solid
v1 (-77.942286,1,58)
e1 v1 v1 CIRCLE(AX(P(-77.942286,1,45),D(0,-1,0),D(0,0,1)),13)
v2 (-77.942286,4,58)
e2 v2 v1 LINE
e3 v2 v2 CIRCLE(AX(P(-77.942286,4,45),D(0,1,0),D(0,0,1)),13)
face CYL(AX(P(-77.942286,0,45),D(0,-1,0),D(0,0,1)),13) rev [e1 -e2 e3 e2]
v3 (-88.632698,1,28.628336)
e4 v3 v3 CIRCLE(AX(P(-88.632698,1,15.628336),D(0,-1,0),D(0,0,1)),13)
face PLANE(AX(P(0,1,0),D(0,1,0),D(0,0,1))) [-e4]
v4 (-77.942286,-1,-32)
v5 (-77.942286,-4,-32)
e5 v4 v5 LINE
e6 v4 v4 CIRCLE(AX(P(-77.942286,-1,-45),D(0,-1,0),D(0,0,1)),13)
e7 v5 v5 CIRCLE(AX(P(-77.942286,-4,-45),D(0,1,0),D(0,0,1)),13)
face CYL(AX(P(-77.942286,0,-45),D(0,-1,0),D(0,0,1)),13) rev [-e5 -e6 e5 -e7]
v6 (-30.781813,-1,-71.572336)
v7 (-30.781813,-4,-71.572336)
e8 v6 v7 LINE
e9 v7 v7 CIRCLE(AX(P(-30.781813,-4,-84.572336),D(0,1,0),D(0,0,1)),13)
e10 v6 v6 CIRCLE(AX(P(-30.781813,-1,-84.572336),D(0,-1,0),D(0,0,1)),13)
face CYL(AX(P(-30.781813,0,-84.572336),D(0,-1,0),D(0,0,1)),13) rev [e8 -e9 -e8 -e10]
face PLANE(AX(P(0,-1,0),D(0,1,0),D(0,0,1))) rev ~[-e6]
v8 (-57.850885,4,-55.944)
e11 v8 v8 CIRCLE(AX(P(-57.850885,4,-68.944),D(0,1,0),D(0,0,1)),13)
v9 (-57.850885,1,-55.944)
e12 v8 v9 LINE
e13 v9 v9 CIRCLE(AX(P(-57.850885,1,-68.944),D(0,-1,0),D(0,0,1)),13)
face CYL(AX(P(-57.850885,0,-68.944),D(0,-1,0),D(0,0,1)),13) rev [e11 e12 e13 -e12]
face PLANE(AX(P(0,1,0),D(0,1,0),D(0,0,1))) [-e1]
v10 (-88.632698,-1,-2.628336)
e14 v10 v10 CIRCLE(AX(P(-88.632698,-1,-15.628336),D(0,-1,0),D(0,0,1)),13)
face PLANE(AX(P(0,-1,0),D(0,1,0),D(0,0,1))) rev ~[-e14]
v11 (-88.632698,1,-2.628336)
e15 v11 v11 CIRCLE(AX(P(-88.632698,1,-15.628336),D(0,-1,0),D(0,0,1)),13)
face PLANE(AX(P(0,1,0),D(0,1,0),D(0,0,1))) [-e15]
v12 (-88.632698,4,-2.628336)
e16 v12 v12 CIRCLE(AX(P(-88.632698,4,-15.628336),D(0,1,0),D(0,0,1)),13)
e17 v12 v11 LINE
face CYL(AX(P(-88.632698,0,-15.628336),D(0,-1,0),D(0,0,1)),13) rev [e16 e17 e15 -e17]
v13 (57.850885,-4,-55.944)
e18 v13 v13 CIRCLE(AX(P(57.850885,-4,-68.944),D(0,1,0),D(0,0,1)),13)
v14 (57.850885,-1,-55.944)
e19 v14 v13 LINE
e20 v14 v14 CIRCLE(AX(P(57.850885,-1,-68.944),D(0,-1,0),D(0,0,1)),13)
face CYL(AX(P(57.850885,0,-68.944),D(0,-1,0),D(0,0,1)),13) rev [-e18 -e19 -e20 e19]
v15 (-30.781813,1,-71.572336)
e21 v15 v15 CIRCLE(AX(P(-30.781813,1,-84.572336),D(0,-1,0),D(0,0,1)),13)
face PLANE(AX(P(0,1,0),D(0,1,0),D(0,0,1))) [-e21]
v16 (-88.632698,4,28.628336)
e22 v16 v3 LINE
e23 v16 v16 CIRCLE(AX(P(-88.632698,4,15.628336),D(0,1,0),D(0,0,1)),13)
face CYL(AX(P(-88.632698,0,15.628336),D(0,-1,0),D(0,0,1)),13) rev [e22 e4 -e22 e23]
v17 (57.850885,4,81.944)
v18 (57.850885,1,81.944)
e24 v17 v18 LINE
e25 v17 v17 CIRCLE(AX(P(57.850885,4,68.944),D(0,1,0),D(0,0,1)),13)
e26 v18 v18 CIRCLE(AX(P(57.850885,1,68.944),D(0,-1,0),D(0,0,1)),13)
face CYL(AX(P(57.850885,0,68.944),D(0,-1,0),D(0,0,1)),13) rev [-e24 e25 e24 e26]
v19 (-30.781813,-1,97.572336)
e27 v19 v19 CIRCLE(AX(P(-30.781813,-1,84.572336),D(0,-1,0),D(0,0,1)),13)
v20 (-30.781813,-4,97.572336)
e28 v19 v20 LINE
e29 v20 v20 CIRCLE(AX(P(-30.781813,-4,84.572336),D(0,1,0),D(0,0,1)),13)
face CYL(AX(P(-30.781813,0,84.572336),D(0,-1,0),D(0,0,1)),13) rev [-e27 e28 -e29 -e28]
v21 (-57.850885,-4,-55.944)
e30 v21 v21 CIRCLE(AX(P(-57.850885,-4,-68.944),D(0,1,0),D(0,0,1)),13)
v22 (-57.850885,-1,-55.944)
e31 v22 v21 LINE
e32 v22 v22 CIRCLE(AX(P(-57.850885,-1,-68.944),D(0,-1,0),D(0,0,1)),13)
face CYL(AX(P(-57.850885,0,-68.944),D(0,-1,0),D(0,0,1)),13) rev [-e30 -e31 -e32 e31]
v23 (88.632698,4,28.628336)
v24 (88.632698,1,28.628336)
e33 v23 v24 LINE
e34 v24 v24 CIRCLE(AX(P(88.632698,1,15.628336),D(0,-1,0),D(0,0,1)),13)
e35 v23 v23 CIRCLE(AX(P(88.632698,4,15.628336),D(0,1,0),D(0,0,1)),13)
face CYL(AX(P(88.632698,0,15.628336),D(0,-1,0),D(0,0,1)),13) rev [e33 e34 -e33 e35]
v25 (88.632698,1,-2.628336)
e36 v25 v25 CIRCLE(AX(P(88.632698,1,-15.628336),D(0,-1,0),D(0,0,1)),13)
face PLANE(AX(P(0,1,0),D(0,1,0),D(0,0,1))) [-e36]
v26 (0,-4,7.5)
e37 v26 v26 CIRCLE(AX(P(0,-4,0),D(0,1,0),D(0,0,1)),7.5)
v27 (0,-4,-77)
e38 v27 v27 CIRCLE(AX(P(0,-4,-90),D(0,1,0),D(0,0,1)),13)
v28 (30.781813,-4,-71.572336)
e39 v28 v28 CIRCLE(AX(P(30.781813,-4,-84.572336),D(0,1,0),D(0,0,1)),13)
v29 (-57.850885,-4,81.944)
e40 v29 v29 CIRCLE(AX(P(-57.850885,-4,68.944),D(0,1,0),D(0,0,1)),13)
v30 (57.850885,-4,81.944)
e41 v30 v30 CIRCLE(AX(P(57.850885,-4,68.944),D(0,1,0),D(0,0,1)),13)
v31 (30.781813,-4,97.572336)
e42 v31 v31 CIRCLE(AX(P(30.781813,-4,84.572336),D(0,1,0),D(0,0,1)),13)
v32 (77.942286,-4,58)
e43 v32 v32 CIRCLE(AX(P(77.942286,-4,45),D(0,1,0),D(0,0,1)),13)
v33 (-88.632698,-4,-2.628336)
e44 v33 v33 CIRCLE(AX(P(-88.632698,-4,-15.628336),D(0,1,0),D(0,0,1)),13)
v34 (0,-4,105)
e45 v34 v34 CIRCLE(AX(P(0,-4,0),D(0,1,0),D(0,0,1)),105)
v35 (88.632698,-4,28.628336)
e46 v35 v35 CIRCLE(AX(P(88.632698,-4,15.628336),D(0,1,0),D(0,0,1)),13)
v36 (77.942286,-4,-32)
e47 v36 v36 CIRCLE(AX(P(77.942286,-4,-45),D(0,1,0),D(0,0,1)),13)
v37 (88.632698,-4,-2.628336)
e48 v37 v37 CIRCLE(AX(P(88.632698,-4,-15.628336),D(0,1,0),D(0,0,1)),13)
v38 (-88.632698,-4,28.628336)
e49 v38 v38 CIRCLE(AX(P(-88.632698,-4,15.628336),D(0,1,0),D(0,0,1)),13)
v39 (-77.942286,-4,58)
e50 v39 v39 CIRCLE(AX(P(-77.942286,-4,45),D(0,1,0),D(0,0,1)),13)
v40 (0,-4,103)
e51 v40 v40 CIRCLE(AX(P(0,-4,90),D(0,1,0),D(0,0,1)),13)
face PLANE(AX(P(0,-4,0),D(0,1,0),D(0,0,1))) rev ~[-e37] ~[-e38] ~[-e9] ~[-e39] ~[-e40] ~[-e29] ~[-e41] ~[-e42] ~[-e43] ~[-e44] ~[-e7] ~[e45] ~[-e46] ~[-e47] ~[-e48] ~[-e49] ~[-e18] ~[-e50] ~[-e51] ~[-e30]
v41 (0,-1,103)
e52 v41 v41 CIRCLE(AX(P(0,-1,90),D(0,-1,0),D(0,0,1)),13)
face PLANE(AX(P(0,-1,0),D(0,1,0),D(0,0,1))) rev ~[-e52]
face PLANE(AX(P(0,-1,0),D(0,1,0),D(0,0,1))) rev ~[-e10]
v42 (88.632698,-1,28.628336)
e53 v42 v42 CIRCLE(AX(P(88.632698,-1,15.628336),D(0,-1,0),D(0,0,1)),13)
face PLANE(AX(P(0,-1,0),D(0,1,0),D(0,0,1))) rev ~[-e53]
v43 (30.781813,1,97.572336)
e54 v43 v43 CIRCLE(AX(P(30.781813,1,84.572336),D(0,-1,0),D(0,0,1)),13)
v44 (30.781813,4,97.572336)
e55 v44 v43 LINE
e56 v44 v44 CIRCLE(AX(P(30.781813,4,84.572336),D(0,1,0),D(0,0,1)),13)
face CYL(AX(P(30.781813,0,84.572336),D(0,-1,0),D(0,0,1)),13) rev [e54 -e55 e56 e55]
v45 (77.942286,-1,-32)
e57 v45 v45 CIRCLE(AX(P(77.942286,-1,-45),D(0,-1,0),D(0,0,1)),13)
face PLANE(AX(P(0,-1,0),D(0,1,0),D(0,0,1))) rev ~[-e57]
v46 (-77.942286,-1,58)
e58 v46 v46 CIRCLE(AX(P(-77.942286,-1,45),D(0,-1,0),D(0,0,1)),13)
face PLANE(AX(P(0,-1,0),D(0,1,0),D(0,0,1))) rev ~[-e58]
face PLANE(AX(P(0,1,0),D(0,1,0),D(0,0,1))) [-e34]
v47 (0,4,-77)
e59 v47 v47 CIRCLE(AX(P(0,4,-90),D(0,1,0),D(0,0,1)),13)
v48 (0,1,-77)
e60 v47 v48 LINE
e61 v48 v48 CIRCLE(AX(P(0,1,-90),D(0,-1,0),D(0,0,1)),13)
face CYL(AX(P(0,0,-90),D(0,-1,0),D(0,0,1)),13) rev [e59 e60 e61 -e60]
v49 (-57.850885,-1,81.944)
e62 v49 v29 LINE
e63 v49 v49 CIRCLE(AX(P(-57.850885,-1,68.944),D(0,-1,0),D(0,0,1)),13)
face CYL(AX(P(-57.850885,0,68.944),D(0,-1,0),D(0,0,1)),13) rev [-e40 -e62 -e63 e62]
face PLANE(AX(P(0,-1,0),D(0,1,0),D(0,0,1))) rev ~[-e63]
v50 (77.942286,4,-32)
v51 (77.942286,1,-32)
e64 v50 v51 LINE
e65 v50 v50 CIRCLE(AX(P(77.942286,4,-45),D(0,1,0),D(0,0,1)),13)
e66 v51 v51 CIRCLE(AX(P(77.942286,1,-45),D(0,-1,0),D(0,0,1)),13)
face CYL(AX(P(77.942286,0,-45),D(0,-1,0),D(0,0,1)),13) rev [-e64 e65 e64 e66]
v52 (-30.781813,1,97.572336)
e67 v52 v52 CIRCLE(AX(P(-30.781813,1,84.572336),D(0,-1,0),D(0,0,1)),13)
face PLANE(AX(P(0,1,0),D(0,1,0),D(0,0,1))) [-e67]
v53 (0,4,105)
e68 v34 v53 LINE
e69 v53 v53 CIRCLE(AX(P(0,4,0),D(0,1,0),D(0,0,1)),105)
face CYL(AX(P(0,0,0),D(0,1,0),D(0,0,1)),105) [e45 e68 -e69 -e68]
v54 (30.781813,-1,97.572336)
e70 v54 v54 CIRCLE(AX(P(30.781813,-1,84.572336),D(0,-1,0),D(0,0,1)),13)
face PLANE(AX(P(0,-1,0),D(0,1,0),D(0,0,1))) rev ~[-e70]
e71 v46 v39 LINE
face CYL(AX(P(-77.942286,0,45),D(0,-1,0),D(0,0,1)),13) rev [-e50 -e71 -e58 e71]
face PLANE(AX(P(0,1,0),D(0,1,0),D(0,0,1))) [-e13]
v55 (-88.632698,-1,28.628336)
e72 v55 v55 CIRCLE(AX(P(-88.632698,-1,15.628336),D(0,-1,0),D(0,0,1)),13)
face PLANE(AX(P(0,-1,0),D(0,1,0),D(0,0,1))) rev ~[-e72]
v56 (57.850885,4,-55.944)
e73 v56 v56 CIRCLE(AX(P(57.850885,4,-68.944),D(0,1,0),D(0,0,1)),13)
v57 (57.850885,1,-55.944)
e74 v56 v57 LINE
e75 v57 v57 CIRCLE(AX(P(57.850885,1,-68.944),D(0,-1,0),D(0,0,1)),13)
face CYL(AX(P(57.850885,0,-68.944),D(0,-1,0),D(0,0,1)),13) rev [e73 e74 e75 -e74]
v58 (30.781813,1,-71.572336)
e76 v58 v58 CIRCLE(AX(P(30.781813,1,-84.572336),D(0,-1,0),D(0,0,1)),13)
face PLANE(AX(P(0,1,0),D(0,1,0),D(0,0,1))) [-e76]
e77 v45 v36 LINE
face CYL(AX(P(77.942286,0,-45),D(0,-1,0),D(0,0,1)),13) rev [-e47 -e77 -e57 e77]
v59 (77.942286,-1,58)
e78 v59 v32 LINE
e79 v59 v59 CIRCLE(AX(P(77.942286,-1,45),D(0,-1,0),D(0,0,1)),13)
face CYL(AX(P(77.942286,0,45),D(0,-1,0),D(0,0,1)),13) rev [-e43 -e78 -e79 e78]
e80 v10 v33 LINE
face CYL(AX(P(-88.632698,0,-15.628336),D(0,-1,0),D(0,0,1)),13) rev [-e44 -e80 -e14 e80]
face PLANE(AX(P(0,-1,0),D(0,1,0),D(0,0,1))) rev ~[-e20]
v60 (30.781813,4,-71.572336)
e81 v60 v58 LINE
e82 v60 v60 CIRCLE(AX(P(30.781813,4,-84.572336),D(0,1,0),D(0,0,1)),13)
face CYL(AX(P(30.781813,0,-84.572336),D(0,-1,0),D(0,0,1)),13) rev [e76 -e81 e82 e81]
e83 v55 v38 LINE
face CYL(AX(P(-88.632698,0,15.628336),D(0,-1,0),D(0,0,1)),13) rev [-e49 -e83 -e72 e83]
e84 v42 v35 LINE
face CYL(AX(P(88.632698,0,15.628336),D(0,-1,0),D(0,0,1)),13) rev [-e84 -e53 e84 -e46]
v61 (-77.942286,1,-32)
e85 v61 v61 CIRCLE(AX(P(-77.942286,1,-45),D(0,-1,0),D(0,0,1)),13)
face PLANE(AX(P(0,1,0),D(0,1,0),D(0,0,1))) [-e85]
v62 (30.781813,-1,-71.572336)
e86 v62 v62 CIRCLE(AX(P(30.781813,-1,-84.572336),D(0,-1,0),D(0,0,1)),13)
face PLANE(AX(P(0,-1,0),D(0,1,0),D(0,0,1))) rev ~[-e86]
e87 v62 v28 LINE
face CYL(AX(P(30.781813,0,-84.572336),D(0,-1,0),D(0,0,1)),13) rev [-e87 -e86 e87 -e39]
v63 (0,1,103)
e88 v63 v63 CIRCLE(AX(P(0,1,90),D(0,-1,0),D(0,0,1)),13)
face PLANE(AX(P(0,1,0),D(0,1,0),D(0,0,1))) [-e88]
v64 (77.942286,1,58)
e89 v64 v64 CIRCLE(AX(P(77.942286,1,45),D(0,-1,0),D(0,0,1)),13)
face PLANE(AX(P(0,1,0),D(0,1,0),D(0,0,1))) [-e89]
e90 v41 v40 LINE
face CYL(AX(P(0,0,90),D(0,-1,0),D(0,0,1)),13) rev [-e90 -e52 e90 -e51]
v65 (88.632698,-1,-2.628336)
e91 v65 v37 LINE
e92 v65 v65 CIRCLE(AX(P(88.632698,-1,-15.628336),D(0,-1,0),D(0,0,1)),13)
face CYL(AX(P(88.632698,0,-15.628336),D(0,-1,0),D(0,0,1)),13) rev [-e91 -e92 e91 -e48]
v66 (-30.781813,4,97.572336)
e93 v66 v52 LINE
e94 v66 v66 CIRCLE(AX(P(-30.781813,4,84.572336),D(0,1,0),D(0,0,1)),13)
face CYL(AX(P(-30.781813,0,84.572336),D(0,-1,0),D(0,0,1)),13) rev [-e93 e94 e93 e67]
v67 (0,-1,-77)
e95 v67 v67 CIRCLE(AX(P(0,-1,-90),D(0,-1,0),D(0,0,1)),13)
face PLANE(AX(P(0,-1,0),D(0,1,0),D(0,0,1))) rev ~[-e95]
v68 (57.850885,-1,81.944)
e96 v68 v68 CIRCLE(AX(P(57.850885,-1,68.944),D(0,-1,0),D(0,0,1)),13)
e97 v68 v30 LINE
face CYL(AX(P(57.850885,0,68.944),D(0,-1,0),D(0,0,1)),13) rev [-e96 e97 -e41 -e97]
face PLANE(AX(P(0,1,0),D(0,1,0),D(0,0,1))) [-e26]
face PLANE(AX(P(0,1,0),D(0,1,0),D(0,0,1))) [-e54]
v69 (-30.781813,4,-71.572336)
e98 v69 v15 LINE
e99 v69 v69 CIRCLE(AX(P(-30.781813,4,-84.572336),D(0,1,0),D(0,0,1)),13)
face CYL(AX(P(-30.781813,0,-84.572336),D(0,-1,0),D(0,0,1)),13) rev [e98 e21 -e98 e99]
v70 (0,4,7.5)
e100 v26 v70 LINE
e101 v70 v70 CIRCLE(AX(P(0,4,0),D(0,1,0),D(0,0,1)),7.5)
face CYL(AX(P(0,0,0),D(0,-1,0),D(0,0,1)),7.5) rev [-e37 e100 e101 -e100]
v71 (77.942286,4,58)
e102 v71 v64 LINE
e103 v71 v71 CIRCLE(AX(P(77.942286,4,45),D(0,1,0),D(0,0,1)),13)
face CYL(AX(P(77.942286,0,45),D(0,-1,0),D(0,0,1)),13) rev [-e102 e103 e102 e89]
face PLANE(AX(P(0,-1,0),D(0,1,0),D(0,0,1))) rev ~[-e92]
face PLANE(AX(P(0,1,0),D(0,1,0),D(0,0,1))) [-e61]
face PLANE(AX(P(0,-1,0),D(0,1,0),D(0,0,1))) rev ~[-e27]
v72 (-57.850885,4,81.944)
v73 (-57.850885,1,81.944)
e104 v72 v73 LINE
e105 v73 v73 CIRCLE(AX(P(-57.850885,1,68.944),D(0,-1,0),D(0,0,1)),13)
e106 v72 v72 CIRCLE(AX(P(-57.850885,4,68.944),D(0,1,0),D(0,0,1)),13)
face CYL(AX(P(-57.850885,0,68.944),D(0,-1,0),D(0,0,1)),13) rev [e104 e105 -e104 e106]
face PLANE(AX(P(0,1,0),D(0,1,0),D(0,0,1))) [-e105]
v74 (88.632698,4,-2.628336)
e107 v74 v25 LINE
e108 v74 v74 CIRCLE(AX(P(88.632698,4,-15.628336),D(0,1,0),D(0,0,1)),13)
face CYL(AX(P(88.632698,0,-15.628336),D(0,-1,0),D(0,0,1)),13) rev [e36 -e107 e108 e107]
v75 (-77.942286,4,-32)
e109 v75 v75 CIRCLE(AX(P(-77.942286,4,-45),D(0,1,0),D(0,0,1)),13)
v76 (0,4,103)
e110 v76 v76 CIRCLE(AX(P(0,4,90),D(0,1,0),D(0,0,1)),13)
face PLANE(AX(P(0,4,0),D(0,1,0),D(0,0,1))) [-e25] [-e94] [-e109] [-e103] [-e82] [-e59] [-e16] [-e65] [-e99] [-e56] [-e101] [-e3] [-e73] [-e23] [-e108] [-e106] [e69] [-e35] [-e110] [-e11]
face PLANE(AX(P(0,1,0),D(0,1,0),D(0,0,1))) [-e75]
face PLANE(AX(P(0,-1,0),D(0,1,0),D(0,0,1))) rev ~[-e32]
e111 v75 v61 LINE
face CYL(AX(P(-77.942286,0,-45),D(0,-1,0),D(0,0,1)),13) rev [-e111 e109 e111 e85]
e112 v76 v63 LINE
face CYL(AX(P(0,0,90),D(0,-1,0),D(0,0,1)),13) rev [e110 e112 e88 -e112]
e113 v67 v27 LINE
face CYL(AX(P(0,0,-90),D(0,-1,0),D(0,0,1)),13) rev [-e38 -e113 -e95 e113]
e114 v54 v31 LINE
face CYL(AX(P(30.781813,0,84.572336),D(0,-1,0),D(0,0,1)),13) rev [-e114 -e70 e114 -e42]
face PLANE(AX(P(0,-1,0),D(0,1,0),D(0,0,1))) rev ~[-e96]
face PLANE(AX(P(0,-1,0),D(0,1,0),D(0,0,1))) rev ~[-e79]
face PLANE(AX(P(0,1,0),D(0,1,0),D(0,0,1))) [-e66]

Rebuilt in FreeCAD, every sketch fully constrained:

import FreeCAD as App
import Part
import Sketcher
from FreeCAD import Vector

doc = App.newDocument("Part")
params = doc.addObject("Spreadsheet::Sheet", "Params")
for row, (alias, value) in enumerate([
    ("sketch1_diameter", "210 mm"),
    ("sketch1_diameter2", "26 mm"),
    ("sketch1_diameter3", "15 mm"),
    ("pad1_length", "8 mm"),
    ("sketch2_diameter", "210 mm"),
    ("sketch2_diameter2", "15 mm"),
    ("pad2_length", "2 mm"),
], start=1):
    params.set(f"A{row}", alias)
    params.set(f"B{row}", "=" + value)
    params.setAlias(f"B{row}", alias)

body = doc.addObject("PartDesign::Body", "Body")

# Sketch on XZ plane
sketch1 = body.newObject("Sketcher::SketchObject", "Sketch")
sketch1.AttachmentSupport = (doc.getObject("XZ_Plane"), [""])
sketch1.MapMode = "FlatFace"
sketch1.addGeometry([
    Part.Circle(Vector(0, 0, 0), Vector(0, 0, 1), 105),  # 0
    Part.Circle(Vector(-58, -69, 0), Vector(0, 0, 1), 13),  # 1
    Part.Circle(Vector(-78, -45, 0), Vector(0, 0, 1), 13),  # 2
    Part.Circle(Vector(-89, -16, 0), Vector(0, 0, 1), 13),  # 3
    Part.Circle(Vector(-31, -85, 0), Vector(0, 0, 1), 13),  # 4
    Part.Circle(Vector(0, -90, 0), Vector(0, 0, 1), 13),  # 5
    Part.Circle(Vector(-89, 16, 0), Vector(0, 0, 1), 13),  # 6
    Part.Circle(Vector(-78, 45, 0), Vector(0, 0, 1), 13),  # 7
    Part.Circle(Vector(-58, 69, 0), Vector(0, 0, 1), 13),  # 8
    Part.Circle(Vector(-31, 85, 0), Vector(0, 0, 1), 13),  # 9
    Part.Circle(Vector(31, -85, 0), Vector(0, 0, 1), 13),  # 10
    Part.Circle(Vector(0, 0, 0), Vector(0, 0, 1), 8),  # 11
    Part.Circle(Vector(58, -69, 0), Vector(0, 0, 1), 13),  # 12
    Part.Circle(Vector(78, -45, 0), Vector(0, 0, 1), 13),  # 13
    Part.Circle(Vector(89, -16, 0), Vector(0, 0, 1), 13),  # 14
    Part.Circle(Vector(0, 90, 0), Vector(0, 0, 1), 13),  # 15
    Part.Circle(Vector(31, 85, 0), Vector(0, 0, 1), 13),  # 16
    Part.Circle(Vector(89, 16, 0), Vector(0, 0, 1), 13),  # 17
    Part.Circle(Vector(78, 45, 0), Vector(0, 0, 1), 13),  # 18
    Part.Circle(Vector(58, 69, 0), Vector(0, 0, 1), 13),  # 19
], False)
sketch1.addConstraint([
    Sketcher.Constraint("Coincident", 0, 3, -1, 1),
    Sketcher.Constraint("Coincident", 11, 3, -1, 1),
    Sketcher.Constraint("Equal", 1, 2),
    Sketcher.Constraint("Equal", 2, 3),
    Sketcher.Constraint("Equal", 3, 4),
    Sketcher.Constraint("Equal", 4, 5),
    Sketcher.Constraint("Equal", 5, 6),
    Sketcher.Constraint("Equal", 6, 7),
    Sketcher.Constraint("Equal", 7, 8),
    Sketcher.Constraint("Equal", 8, 9),
    Sketcher.Constraint("Equal", 9, 10),
    Sketcher.Constraint("Equal", 10, 12),
    Sketcher.Constraint("Equal", 12, 13),
    Sketcher.Constraint("Equal", 13, 14),
    Sketcher.Constraint("Equal", 14, 15),
    Sketcher.Constraint("Equal", 15, 16),
    Sketcher.Constraint("Equal", 16, 17),
    Sketcher.Constraint("Equal", 17, 18),
    Sketcher.Constraint("Equal", 18, 19),
    Sketcher.Constraint("Symmetric", 9, 3, 10, 3, -1, 1),
    Sketcher.Constraint("Symmetric", 8, 3, 12, 3, -1, 1),
    Sketcher.Constraint("Symmetric", 7, 3, 13, 3, -1, 1),
    Sketcher.Constraint("Symmetric", 6, 3, 14, 3, -1, 1),
    Sketcher.Constraint("Symmetric", 5, 3, 15, 3, -1, 1),
    Sketcher.Constraint("Symmetric", 4, 3, 16, 3, -1, 1),
    Sketcher.Constraint("Symmetric", 3, 3, 17, 3, -1, 1),
    Sketcher.Constraint("Symmetric", 2, 3, 18, 3, -1, 1),
    Sketcher.Constraint("Symmetric", 1, 3, 19, 3, -1, 1),
    Sketcher.Constraint("Symmetric", 4, 3, 10, 3, -2),
    Sketcher.Constraint("Symmetric", 1, 3, 12, 3, -2),
    Sketcher.Constraint("Symmetric", 2, 3, 13, 3, -2),
    Sketcher.Constraint("Symmetric", 3, 3, 14, 3, -2),
    Sketcher.Constraint("PointOnObject", 5, 3, -2),
    Sketcher.Constraint("Diameter", 0, 210.0),
    Sketcher.Constraint("Diameter", 1, 26.0),
    Sketcher.Constraint("Diameter", 11, 15.0),
    Sketcher.Constraint("DistanceY", 2, 3, -1, 1, 45.0),
    Sketcher.Constraint("DistanceY", 5, 3, -1, 1, 90.0),
    Sketcher.Constraint("DistanceY", 1, 3, -1, 1, 68.944),
    Sketcher.Constraint("DistanceY", 4, 3, 3, 3, 68.944),
    Sketcher.Constraint("DistanceX", 2, 3, 1, 3, 20.091401),
    Sketcher.Constraint("DistanceX", 2, 3, 10, 3, 108.724099),
    Sketcher.Constraint("DistanceX", 3, 3, 2, 3, 10.690411),
    Sketcher.Constraint("DistanceX", 1, 3, 4, 3, 27.069072),
    Sketcher.Constraint("DistanceY", 3, 3, 6, 3, 31.256672),
])
sketch1.setExpression("Constraints[33]", "Params.sketch1_diameter")
sketch1.setExpression("Constraints[34]", "Params.sketch1_diameter2")
sketch1.setExpression("Constraints[35]", "Params.sketch1_diameter3")
pad1 = body.newObject("PartDesign::Pad", "Pad")
pad1.Profile = sketch1
pad1.setExpression("Length", "Params.pad1_length")
pad1.Midplane = True

# Sketch on XZ plane
sketch2 = body.newObject("Sketcher::SketchObject", "Sketch001")
sketch2.AttachmentSupport = (doc.getObject("XZ_Plane"), [""])
sketch2.MapMode = "FlatFace"
sketch2.addGeometry([
    Part.Circle(Vector(0, 0, 0), Vector(0, 0, 1), 105),
    Part.Circle(Vector(0, 0, 0), Vector(0, 0, 1), 8),
], False)
sketch2.addConstraint([
    Sketcher.Constraint("Coincident", 0, 3, -1, 1),
    Sketcher.Constraint("Coincident", 1, 3, -1, 1),
    Sketcher.Constraint("Diameter", 0, 210.0),
    Sketcher.Constraint("Diameter", 1, 15.0),
])
sketch2.setExpression("Constraints[2]", "Params.sketch2_diameter")
sketch2.setExpression("Constraints[3]", "Params.sketch2_diameter2")
pad2 = body.newObject("PartDesign::Pad", "Pad001")
pad2.Profile = sketch2
pad2.setExpression("Length", "Params.pad2_length")
pad2.Midplane = True

doc.recompute()
